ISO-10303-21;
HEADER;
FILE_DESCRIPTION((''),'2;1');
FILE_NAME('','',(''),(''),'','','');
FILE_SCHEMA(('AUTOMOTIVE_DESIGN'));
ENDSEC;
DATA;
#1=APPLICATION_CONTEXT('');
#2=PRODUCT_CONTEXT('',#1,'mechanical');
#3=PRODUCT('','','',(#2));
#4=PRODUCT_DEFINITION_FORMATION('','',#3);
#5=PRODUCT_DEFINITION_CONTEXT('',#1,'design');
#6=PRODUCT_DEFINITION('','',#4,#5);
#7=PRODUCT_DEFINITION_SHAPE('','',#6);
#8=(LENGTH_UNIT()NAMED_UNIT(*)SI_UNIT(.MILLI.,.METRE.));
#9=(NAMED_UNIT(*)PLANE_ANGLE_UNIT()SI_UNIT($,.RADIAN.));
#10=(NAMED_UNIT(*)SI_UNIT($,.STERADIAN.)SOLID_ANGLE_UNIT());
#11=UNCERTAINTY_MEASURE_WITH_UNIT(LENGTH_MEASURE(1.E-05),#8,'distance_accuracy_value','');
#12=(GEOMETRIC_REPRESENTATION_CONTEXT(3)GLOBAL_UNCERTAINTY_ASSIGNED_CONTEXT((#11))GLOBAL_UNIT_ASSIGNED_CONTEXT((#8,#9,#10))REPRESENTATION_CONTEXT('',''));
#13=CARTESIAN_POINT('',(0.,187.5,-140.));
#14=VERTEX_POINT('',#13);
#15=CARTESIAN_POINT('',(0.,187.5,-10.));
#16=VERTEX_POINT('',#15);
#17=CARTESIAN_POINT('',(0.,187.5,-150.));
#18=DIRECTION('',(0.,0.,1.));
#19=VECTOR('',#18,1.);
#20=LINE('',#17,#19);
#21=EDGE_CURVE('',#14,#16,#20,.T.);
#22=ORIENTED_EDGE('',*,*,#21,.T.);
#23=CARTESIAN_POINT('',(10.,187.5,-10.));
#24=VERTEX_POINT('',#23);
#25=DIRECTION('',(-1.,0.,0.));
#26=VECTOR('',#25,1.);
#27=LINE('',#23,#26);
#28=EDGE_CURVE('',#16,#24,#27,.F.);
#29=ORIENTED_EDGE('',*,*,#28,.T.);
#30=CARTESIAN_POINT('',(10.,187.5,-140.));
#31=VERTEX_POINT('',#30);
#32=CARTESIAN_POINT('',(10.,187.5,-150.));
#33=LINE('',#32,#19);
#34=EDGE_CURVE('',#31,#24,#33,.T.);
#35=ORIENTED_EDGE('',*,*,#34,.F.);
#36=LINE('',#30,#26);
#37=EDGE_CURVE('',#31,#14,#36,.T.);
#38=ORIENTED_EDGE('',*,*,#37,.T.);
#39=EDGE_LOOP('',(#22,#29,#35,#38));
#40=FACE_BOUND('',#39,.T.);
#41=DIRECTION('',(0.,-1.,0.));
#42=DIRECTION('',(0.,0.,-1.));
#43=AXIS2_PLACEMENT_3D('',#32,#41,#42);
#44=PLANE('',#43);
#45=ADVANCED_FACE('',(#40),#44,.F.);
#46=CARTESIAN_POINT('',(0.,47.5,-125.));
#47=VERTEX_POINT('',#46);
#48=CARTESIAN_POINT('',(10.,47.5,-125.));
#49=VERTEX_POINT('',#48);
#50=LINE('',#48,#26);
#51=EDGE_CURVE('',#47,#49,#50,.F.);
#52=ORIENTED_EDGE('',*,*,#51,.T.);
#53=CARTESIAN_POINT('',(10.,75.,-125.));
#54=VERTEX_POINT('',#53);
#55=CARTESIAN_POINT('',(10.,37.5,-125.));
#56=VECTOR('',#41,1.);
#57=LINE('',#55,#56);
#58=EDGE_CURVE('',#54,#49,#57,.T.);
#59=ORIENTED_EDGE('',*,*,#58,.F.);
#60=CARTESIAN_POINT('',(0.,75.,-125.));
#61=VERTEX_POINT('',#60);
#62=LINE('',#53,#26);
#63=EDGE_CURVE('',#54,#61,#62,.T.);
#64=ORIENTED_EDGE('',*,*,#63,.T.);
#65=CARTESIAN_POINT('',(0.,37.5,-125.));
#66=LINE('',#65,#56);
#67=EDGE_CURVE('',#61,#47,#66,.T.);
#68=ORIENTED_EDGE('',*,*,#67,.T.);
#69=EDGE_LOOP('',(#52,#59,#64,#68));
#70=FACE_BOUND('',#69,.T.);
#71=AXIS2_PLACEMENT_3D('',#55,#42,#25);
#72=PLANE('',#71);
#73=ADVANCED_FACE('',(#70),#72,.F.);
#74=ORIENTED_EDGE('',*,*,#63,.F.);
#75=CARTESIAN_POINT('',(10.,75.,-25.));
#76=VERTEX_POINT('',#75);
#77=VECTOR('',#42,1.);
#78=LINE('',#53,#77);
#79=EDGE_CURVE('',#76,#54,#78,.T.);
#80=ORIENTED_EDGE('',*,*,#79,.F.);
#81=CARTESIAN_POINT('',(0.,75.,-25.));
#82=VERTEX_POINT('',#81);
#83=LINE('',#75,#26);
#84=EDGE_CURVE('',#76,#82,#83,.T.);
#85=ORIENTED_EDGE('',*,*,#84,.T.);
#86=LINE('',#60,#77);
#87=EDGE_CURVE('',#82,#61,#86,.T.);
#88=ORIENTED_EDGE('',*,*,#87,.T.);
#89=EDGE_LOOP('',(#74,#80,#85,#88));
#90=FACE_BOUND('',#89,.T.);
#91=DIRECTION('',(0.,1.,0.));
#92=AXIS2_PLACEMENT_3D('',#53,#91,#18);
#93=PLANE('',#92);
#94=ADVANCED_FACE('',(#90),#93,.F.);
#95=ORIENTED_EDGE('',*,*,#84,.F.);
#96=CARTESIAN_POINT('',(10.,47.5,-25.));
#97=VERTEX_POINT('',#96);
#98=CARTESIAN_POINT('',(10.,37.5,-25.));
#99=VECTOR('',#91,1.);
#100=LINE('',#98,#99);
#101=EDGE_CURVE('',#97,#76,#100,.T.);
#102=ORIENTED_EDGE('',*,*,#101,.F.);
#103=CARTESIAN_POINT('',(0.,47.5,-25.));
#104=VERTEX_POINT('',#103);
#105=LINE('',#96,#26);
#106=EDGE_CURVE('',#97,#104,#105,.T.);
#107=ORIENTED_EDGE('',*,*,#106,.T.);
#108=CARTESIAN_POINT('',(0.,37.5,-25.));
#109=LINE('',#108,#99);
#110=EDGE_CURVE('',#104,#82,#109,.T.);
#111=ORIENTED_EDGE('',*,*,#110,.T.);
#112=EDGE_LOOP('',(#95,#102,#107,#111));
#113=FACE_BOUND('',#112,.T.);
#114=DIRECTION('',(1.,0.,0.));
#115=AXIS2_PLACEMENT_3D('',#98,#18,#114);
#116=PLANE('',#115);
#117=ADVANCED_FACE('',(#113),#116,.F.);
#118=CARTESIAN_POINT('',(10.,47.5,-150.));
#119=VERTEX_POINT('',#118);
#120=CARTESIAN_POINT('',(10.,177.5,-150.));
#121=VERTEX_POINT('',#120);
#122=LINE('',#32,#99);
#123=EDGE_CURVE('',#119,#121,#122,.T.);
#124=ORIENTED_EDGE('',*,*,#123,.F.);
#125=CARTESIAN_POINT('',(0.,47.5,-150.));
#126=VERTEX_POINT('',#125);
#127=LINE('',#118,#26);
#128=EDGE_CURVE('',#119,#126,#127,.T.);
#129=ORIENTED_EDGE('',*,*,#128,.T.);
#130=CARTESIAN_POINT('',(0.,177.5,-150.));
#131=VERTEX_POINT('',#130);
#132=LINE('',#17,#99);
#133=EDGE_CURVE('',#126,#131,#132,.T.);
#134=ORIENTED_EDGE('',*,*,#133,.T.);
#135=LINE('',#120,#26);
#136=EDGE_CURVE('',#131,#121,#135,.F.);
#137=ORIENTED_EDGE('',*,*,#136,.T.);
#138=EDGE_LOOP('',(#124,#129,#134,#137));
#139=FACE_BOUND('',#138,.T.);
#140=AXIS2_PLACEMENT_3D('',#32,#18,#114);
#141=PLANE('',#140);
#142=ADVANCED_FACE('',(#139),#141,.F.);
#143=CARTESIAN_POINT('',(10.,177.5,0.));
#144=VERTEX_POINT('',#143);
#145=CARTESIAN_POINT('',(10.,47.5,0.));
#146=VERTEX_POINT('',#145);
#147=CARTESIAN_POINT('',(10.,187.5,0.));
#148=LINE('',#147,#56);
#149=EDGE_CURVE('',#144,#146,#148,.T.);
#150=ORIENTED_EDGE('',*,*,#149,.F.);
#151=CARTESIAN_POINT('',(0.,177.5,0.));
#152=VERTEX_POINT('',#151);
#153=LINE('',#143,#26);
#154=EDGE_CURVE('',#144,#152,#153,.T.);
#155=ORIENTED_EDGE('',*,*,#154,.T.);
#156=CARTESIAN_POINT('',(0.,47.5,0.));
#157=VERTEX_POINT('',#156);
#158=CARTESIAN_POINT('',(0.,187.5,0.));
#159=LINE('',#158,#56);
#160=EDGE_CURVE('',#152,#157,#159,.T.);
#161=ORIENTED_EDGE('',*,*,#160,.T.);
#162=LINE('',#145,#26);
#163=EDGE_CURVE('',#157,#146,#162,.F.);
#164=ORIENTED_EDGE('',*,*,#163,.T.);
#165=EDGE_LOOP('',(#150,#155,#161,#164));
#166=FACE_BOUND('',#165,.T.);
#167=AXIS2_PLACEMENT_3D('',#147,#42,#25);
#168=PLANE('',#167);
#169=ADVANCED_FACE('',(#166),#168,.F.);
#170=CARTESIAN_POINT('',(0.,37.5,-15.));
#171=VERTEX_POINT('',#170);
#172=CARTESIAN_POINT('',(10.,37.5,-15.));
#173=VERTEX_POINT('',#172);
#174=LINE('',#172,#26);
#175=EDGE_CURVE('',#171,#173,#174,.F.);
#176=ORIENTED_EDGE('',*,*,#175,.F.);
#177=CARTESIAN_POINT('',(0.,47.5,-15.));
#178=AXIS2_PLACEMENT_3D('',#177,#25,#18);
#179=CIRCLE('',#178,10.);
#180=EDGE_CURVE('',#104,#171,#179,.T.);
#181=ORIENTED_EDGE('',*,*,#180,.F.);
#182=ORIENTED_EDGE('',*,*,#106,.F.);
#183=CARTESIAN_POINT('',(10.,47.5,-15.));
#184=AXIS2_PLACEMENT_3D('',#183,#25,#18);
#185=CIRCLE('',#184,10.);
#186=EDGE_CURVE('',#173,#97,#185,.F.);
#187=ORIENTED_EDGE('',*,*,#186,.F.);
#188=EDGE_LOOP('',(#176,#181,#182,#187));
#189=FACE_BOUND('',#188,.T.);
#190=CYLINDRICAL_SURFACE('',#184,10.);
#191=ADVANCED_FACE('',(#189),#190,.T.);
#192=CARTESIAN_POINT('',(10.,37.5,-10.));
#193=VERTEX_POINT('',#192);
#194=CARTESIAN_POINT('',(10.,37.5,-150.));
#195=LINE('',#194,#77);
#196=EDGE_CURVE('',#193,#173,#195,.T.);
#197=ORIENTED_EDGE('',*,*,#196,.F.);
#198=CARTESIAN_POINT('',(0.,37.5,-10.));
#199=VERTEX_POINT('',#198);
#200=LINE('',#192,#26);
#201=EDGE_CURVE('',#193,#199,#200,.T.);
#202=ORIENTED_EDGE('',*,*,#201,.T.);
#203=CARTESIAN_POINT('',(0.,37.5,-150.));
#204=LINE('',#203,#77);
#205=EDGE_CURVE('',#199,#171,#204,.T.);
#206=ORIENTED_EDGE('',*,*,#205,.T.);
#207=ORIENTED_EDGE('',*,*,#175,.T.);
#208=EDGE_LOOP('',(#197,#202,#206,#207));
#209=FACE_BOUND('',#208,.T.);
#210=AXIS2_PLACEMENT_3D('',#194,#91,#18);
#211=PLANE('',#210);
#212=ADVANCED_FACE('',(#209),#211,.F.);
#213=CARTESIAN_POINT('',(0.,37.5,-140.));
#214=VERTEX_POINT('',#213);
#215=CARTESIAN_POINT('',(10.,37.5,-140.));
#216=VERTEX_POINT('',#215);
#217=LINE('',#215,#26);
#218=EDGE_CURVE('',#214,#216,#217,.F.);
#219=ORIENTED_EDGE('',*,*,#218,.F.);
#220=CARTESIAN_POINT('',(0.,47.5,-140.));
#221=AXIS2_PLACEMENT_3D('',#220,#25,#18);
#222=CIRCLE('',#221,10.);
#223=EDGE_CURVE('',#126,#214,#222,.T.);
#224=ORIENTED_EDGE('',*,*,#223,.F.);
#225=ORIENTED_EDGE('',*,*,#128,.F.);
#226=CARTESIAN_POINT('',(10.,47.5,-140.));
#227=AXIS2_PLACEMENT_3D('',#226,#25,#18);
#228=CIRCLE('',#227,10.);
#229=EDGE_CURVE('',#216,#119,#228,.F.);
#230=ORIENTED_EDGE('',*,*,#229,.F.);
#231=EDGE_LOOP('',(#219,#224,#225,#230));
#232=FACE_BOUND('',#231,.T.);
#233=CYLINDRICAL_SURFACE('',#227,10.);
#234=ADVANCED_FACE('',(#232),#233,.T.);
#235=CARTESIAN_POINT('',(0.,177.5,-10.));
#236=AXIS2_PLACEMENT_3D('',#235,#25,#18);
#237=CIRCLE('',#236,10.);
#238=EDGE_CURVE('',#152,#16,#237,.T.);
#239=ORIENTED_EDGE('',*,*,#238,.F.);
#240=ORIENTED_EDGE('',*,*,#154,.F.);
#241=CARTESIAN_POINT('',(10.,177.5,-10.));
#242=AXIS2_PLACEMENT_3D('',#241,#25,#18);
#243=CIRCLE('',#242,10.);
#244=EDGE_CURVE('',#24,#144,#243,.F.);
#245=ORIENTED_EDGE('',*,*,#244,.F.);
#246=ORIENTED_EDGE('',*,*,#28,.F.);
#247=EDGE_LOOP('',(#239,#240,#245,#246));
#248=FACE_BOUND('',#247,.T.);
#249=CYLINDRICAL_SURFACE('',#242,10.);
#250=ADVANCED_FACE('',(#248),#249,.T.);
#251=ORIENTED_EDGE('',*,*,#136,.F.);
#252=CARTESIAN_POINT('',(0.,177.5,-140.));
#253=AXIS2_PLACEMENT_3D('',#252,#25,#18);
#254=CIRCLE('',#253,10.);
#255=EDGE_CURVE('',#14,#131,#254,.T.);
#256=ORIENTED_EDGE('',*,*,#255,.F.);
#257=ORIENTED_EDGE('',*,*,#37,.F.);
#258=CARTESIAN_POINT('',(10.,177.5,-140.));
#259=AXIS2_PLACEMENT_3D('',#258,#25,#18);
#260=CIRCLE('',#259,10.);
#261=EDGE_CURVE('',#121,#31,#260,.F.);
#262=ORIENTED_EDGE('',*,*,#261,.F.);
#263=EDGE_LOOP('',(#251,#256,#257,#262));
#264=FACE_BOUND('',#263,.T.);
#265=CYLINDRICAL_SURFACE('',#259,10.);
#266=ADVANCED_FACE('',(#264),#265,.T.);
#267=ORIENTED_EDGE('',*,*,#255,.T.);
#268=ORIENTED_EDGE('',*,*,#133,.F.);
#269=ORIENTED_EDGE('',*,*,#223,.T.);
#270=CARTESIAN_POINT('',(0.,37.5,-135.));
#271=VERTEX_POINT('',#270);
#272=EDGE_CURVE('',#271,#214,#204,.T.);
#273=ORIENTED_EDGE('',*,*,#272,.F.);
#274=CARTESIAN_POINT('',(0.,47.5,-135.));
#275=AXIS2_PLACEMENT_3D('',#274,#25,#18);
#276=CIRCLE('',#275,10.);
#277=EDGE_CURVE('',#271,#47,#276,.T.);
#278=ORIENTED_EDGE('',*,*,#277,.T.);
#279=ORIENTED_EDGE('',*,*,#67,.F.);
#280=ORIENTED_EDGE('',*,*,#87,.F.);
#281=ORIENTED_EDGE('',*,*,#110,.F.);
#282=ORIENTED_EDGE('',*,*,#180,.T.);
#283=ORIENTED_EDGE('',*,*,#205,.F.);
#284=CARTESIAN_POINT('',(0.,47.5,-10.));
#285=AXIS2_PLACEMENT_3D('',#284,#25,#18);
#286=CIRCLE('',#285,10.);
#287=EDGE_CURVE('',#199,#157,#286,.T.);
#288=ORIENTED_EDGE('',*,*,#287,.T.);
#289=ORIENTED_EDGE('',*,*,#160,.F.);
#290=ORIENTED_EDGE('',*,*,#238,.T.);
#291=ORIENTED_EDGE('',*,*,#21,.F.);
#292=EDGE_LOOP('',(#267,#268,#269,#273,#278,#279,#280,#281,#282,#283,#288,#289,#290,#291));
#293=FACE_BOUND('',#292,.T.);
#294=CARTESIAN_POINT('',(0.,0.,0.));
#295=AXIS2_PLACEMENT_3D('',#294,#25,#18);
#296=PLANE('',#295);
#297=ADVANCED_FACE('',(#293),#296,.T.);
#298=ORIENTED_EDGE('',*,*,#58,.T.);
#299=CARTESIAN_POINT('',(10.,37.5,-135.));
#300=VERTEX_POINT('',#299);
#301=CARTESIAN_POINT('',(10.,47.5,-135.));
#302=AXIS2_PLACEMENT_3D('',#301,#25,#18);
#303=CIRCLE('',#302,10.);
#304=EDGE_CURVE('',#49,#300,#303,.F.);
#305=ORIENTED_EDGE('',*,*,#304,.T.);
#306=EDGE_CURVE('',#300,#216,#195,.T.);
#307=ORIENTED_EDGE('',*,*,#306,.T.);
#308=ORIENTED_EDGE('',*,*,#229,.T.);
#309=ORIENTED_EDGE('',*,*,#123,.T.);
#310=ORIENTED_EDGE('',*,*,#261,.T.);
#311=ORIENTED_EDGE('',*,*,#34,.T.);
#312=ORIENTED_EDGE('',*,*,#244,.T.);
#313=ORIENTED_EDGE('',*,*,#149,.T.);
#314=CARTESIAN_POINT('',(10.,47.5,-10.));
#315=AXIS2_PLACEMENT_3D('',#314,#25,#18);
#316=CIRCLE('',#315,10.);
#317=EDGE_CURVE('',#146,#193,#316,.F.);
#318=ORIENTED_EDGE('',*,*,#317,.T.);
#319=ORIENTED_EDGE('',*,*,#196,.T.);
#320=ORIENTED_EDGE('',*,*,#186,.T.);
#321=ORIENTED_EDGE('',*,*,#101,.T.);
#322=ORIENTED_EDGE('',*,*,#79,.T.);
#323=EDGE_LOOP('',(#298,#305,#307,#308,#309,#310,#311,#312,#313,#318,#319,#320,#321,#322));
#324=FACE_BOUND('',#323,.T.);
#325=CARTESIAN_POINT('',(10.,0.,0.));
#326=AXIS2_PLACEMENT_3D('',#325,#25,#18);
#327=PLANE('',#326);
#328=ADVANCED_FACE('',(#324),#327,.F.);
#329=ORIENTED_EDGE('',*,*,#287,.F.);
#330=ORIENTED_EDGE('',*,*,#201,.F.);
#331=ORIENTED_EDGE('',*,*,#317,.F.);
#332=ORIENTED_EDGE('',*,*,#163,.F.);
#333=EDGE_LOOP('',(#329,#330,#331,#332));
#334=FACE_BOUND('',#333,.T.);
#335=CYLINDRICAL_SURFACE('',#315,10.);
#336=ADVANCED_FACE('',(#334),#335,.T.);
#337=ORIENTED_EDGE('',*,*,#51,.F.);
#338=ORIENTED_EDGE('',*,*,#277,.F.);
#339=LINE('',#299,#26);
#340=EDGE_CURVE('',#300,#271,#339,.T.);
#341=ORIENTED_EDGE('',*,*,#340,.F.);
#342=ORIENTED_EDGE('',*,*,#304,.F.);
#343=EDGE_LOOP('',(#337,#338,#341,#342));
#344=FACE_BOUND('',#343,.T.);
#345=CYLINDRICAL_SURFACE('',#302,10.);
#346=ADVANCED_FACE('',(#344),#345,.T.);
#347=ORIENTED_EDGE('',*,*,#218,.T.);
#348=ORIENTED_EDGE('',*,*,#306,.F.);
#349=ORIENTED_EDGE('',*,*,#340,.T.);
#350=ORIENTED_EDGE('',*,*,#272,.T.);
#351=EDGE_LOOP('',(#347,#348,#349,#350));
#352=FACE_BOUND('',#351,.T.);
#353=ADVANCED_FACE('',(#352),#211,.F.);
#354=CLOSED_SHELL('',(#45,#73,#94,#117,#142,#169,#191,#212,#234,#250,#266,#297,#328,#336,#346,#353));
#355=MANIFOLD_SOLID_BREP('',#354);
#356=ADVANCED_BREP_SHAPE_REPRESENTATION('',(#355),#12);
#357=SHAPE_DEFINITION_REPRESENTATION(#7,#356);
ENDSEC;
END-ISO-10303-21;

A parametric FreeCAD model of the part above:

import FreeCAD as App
import Part
import Sketcher


def edges_at(feature, points):
    """Names of the edges that pass closest to the given points."""
    edges = feature.Shape.Edges
    near = lambda p: min(range(len(edges)), key=lambda i: edges[i].distToShape(Part.Vertex(*p))[0])
    return sorted({f"Edge{near(p) + 1}" for p in points})

doc = App.newDocument("Part")
body = doc.addObject("PartDesign::Body", "Body")

# Sketch on YZ plane
sketch1 = body.newObject("Sketcher::SketchObject", "Sketch")
sketch1.AttachmentSupport = (doc.getObject("YZ_Plane"), [""])
sketch1.MapMode = "FlatFace"
sketch1.addGeometry(Part.LineSegment(App.Vector(188, 0, 0), App.Vector(38, 0, 0)), False)
sketch1.addGeometry(Part.LineSegment(App.Vector(38, 0, 0), App.Vector(38, -150, 0)), False)
sketch1.addGeometry(Part.LineSegment(App.Vector(38, -150, 0), App.Vector(188, -150, 0)), False)
sketch1.addGeometry(Part.LineSegment(App.Vector(188, -150, 0), App.Vector(188, 0, 0)), False)
sketch1.addConstraint(Sketcher.Constraint("Coincident", 0, 2, 1, 1))
sketch1.addConstraint(Sketcher.Constraint("Coincident", 1, 2, 2, 1))
sketch1.addConstraint(Sketcher.Constraint("Coincident", 2, 2, 3, 1))
sketch1.addConstraint(Sketcher.Constraint("Coincident", 3, 2, 0, 1))
sketch1.addConstraint(Sketcher.Constraint("Horizontal", 0))
sketch1.addConstraint(Sketcher.Constraint("Vertical", 1))
sketch1.addConstraint(Sketcher.Constraint("Horizontal", 2))
sketch1.addConstraint(Sketcher.Constraint("Vertical", 3))
sketch1.addConstraint(Sketcher.Constraint("PointOnObject", 0, 2, -1))
sketch1.addConstraint(Sketcher.Constraint("Equal", 2, 1))
sketch1.addConstraint(Sketcher.Constraint("DistanceX", 0, 2, 0, 1, 150.0))
sketch1.addConstraint(Sketcher.Constraint("DistanceX", -1, 1, 0, 2, 37.5))
pad1 = body.newObject("PartDesign::Pad", "Pad")
pad1.Profile = sketch1
pad1.Length = 10

# Sketch on YZ plane
sketch2 = body.newObject("Sketcher::SketchObject", "Sketch001")
sketch2.AttachmentSupport = (doc.getObject("YZ_Plane"), [""])
sketch2.MapMode = "FlatFace"
sketch2.addGeometry(Part.LineSegment(App.Vector(75, -125, 0), App.Vector(38, -125, 0)), False)
sketch2.addGeometry(Part.LineSegment(App.Vector(38, -125, 0), App.Vector(38, -25, 0)), False)
sketch2.addGeometry(Part.LineSegment(App.Vector(38, -25, 0), App.Vector(75, -25, 0)), False)
sketch2.addGeometry(Part.LineSegment(App.Vector(75, -25, 0), App.Vector(75, -125, 0)), False)
sketch2.addConstraint(Sketcher.Constraint("Coincident", 0, 2, 1, 1))
sketch2.addConstraint(Sketcher.Constraint("Coincident", 1, 2, 2, 1))
sketch2.addConstraint(Sketcher.Constraint("Coincident", 2, 2, 3, 1))
sketch2.addConstraint(Sketcher.Constraint("Coincident", 3, 2, 0, 1))
sketch2.addConstraint(Sketcher.Constraint("Horizontal", 0))
sketch2.addConstraint(Sketcher.Constraint("Vertical", 1))
sketch2.addConstraint(Sketcher.Constraint("Horizontal", 2))
sketch2.addConstraint(Sketcher.Constraint("Vertical", 3))
sketch2.addConstraint(Sketcher.Constraint("DistanceY", 1, 1, 1, 2, 100.0))
sketch2.addConstraint(Sketcher.Constraint("DistanceX", 0, 2, 0, 1, 37.5))
sketch2.addConstraint(Sketcher.Constraint("DistanceY", 0, 2, -1, 1, 125.0))
sketch2.addConstraint(Sketcher.Constraint("DistanceX", -1, 1, 2, 2, 75.0))
pocket1 = body.newObject("PartDesign::Pocket", "Pocket")
pocket1.Profile = sketch2
pocket1.Length = 10
pocket1.Reversed = True
doc.recompute()

fillet = body.newObject("PartDesign::Fillet", "Fillet")
fillet.Base = (pocket1, edges_at(pocket1, [
    (5, 37.5, -125),
    (5, 37.5, -25),
    (5, 187.5, 0),
    (5, 187.5, -150),
    (5, 37.5, -150),
    (5, 37.5, 0),
]))
fillet.Radius = 10

doc.recompute()
